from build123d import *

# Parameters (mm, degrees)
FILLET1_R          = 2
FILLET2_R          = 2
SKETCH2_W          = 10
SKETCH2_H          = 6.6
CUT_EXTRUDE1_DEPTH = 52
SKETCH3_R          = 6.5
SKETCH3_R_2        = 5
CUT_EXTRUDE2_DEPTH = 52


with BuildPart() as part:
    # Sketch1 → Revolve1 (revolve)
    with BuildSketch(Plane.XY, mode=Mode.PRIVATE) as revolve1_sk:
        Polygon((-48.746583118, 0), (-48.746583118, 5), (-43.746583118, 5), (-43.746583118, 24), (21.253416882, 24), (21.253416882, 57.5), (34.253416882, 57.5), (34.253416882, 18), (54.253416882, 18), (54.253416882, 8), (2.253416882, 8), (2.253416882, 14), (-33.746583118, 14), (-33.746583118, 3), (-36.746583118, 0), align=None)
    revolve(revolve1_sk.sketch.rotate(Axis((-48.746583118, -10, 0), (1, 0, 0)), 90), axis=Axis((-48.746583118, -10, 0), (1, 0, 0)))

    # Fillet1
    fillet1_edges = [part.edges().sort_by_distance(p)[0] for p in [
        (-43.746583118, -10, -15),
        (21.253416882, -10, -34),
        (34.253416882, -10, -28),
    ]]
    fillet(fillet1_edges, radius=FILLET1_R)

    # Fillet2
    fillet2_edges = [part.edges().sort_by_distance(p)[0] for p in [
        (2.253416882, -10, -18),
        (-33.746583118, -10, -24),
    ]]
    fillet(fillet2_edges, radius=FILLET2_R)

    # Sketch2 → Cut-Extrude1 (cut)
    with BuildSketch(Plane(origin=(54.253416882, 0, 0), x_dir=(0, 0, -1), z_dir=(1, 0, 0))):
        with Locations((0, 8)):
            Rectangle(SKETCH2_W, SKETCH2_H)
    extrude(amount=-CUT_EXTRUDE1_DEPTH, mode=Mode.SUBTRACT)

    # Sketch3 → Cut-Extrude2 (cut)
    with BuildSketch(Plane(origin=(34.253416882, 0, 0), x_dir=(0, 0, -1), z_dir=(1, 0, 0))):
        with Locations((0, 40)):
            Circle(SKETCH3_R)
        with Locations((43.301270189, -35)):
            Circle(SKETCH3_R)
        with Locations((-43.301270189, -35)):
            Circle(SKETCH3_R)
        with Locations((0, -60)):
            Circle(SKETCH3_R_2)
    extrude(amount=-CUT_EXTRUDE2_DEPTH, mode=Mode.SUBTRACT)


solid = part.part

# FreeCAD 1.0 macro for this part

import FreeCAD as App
import Part
import Sketcher

V = App.Vector
Q = App.Units.Quantity


def edges_at(feature, points):
    """Names of the edges that pass closest to the given points."""
    edges = feature.Shape.Edges
    near = lambda p: min(range(len(edges)), key=lambda i: edges[i].distToShape(Part.Vertex(*p))[0])
    return sorted({f"Edge{near(p) + 1}" for p in points})

doc = App.newDocument("Part")
body = doc.addObject("PartDesign::Body", "Body")

sketch1 = body.newObject("Sketcher::SketchObject", "Sketch")
sketch1.AttachmentSupport = (doc.getObject("XY_Plane"), [""])
sketch1.MapMode = "FlatFace"
sketch1.addGeometry(Part.LineSegment(V(-48.746583, 5, 0), V(-48.746583, 0, 0)), False)
sketch1.addGeometry(Part.LineSegment(V(-48.746583, 0, 0), V(-36.746583, 0, 0)), False)
sketch1.addGeometry(Part.LineSegment(V(-36.746583, 0, 0), V(-33.746583, 3, 0)), False)
sketch1.addGeometry(Part.LineSegment(V(-33.746583, 3, 0), V(-33.746583, 14, 0)), False)
sketch1.addGeometry(Part.LineSegment(V(-33.746583, 14, 0), V(2.253417, 14, 0)), False)
sketch1.addGeometry(Part.LineSegment(V(2.253417, 14, 0), V(2.253417, 8, 0)), False)
sketch1.addGeometry(Part.LineSegment(V(2.253417, 8, 0), V(54.253417, 8, 0)), False)
sketch1.addGeometry(Part.LineSegment(V(54.253417, 8, 0), V(54.253417, 18, 0)), False)
sketch1.addGeometry(Part.LineSegment(V(54.253417, 18, 0), V(34.253417, 18, 0)), False)
sketch1.addGeometry(Part.LineSegment(V(34.253417, 18, 0), V(34.253417, 57.5, 0)), False)
sketch1.addGeometry(Part.LineSegment(V(34.253417, 57.5, 0), V(21.253417, 57.5, 0)), False)
sketch1.addGeometry(Part.LineSegment(V(21.253417, 57.5, 0), V(21.253417, 24, 0)), False)
sketch1.addGeometry(Part.LineSegment(V(21.253417, 24, 0), V(-43.746583, 24, 0)), False)
sketch1.addGeometry(Part.LineSegment(V(-43.746583, 24, 0), V(-43.746583, 5, 0)), False)
sketch1.addGeometry(Part.LineSegment(V(-43.746583, 5, 0), V(-48.746583, 5, 0)), False)
sketch1.addGeometry(Part.LineSegment(V(-48.746583, -10, 0), V(54.253417, -10, 0)), True)
sketch1.addConstraint(Sketcher.Constraint("Coincident", 0, 2, 1, 1))
sketch1.addConstraint(Sketcher.Constraint("Coincident", 1, 2, 2, 1))
sketch1.addConstraint(Sketcher.Constraint("Coincident", 2, 2, 3, 1))
sketch1.addConstraint(Sketcher.Constraint("Coincident", 3, 2, 4, 1))
sketch1.addConstraint(Sketcher.Constraint("Coincident", 4, 2, 5, 1))
sketch1.addConstraint(Sketcher.Constraint("Coincident", 5, 2, 6, 1))
sketch1.addConstraint(Sketcher.Constraint("Coincident", 6, 2, 7, 1))
sketch1.addConstraint(Sketcher.Constraint("Coincident", 7, 2, 8, 1))
sketch1.addConstraint(Sketcher.Constraint("Coincident", 8, 2, 9, 1))
sketch1.addConstraint(Sketcher.Constraint("Coincident", 9, 2, 10, 1))
sketch1.addConstraint(Sketcher.Constraint("Coincident", 10, 2, 11, 1))
sketch1.addConstraint(Sketcher.Constraint("Coincident", 11, 2, 12, 1))
sketch1.addConstraint(Sketcher.Constraint("Coincident", 12, 2, 13, 1))
sketch1.addConstraint(Sketcher.Constraint("Coincident", 13, 2, 14, 1))
sketch1.addConstraint(Sketcher.Constraint("Coincident", 14, 2, 0, 1))
sketch1.addConstraint(Sketcher.Constraint("Vertical", 0))
sketch1.addConstraint(Sketcher.Constraint("Horizontal", 1))
sketch1.addConstraint(Sketcher.Constraint("Vertical", 3))
sketch1.addConstraint(Sketcher.Constraint("Horizontal", 4))
sketch1.addConstraint(Sketcher.Constraint("Vertical", 5))
sketch1.addConstraint(Sketcher.Constraint("Horizontal", 6))
sketch1.addConstraint(Sketcher.Constraint("Vertical", 7))
sketch1.addConstraint(Sketcher.Constraint("Horizontal", 8))
sketch1.addConstraint(Sketcher.Constraint("Vertical", 9))
sketch1.addConstraint(Sketcher.Constraint("Horizontal", 10))
sketch1.addConstraint(Sketcher.Constraint("Vertical", 11))
sketch1.addConstraint(Sketcher.Constraint("Horizontal", 12))
sketch1.addConstraint(Sketcher.Constraint("Vertical", 13))
sketch1.addConstraint(Sketcher.Constraint("Horizontal", 14))
sketch1.addConstraint(Sketcher.Constraint("Horizontal", 15))
sketch1.addConstraint(Sketcher.Constraint("PointOnObject", 0, 2, -1))
sketch1.addConstraint(Sketcher.Constraint("Vertical", 14, 2, 15, 1))
sketch1.addConstraint(Sketcher.Constraint("Vertical", 7, 2, 15, 2))
sketch1.addConstraint(Sketcher.Constraint("Equal", 14, 0))
sketch1.addConstraint(Sketcher.Constraint("DistanceX", 1, 1, 1, 2, Q("12 mm")))
sketch1.addConstraint(Sketcher.Constraint("DistanceX", 4, 1, 4, 2, Q("36 mm")))
sketch1.addConstraint(Sketcher.Constraint("DistanceX", 6, 1, 6, 2, Q("52 mm")))
sketch1.addConstraint(Sketcher.Constraint("DistanceX", 8, 2, 8, 1, Q("20 mm")))
sketch1.addConstraint(Sketcher.Constraint("DistanceX", 10, 2, 10, 1, Q("13 mm")))
sketch1.addConstraint(Sketcher.Constraint("DistanceX", 12, 2, 12, 1, Q("65 mm")))
sketch1.addConstraint(Sketcher.Constraint("DistanceX", 14, 2, 14, 1, Q("5 mm")))
sketch1.addConstraint(Sketcher.Constraint("DistanceY", 3, 1, 3, 2, Q("11 mm")))
sketch1.addConstraint(Sketcher.Constraint("DistanceY", 5, 2, 5, 1, Q("6 mm")))
sketch1.addConstraint(Sketcher.Constraint("DistanceY", 7, 1, 7, 2, Q("10 mm")))
sketch1.addConstraint(Sketcher.Constraint("DistanceY", 13, 2, 13, 1, Q("19 mm")))
sketch1.addConstraint(Sketcher.Constraint("Angle", 2, Q("45 deg")))
sketch1.addConstraint(Sketcher.Constraint("DistanceY", 9, 1, 9, 2, Q("39.5 mm")))
sketch1.addConstraint(Sketcher.Constraint("DistanceY", 15, 1, -1, 1, Q("10 mm")))
sketch1.addConstraint(Sketcher.Constraint("DistanceX", 0, 2, -1, 1, Q("48.746583 mm")))
revolution = body.newObject("PartDesign::Revolution", "Revolution")
revolution.Profile = sketch1
revolution.ReferenceAxis = (sketch1, ["Axis0"])
revolution.Angle = 360
doc.recompute()

fillet = body.newObject("PartDesign::Fillet", "Fillet")
fillet.Base = (revolution, edges_at(revolution, [(-43.747, -10, -15), (21.253, -10, -34), (34.253, -10, -28)]))
fillet.Radius = 2
doc.recompute()

fillet2 = body.newObject("PartDesign::Fillet", "Fillet001")
fillet2.Base = (fillet, edges_at(fillet, [(2.253, -10, -18), (-33.747, -10, -24)]))
fillet2.Radius = 2

sketch2 = body.newObject("Sketcher::SketchObject", "Sketch001")
sketch2.AttachmentSupport = (doc.getObject("YZ_Plane"), [""])
sketch2.MapMode = "FlatFace"
sketch2.AttachmentOffset = App.Placement(V(0, 0, 54.253417), App.Rotation())
sketch2.addGeometry(Part.LineSegment(V(11.3, 5, 0), V(4.7, 5, 0)), False)
sketch2.addGeometry(Part.LineSegment(V(4.7, 5, 0), V(4.7, -5, 0)), False)
sketch2.addGeometry(Part.LineSegment(V(4.7, -5, 0), V(11.3, -5, 0)), False)
sketch2.addGeometry(Part.LineSegment(V(11.3, -5, 0), V(11.3, 5, 0)), False)
sketch2.addConstraint(Sketcher.Constraint("Coincident", 0, 2, 1, 1))
sketch2.addConstraint(Sketcher.Constraint("Coincident", 1, 2, 2, 1))
sketch2.addConstraint(Sketcher.Constraint("Coincident", 2, 2, 3, 1))
sketch2.addConstraint(Sketcher.Constraint("Coincident", 3, 2, 0, 1))
sketch2.addConstraint(Sketcher.Constraint("Horizontal", 0))
sketch2.addConstraint(Sketcher.Constraint("Vertical", 1))
sketch2.addConstraint(Sketcher.Constraint("Horizontal", 2))
sketch2.addConstraint(Sketcher.Constraint("Vertical", 3))
sketch2.addConstraint(Sketcher.Constraint("DistanceY", 1, 2, 1, 1, Q("10 mm")))
sketch2.addConstraint(Sketcher.Constraint("DistanceX", 0, 2, 0, 1, Q("6.6 mm")))
sketch2.addConstraint(Sketcher.Constraint("DistanceY", -1, 1, 0, 2, Q("5 mm")))
sketch2.addConstraint(Sketcher.Constraint("DistanceX", -1, 1, 0, 2, Q("4.7 mm")))
pocket1 = body.newObject("PartDesign::Pocket", "Pocket")
pocket1.Profile = sketch2
pocket1.Length = 52

sketch3 = body.newObject("Sketcher::SketchObject", "Sketch002")
sketch3.AttachmentSupport = (doc.getObject("YZ_Plane"), [""])
sketch3.MapMode = "FlatFace"
sketch3.AttachmentOffset = App.Placement(V(0, 0, 34.253417), App.Rotation())
sketch3.addGeometry(Part.Circle(V(40, 0, 0), V(0, 0, 1), 6.5), False)
sketch3.addGeometry(Part.Circle(V(-35, -43.30127, 0), V(0, 0, 1), 6.5), False)
sketch3.addGeometry(Part.Circle(V(-35, 43.30127, 0), V(0, 0, 1), 6.5), False)
sketch3.addGeometry(Part.Circle(V(-60, 0, 0), V(0, 0, 1), 5), False)
sketch3.addConstraint(Sketcher.Constraint("Equal", 0, 1))
sketch3.addConstraint(Sketcher.Constraint("Equal", 1, 2))
sketch3.addConstraint(Sketcher.Constraint("Symmetric", 1, 3, 2, 3, -1))
sketch3.addConstraint(Sketcher.Constraint("PointOnObject", 0, 3, -1))
sketch3.addConstraint(Sketcher.Constraint("PointOnObject", 3, 3, -1))
sketch3.addConstraint(Sketcher.Constraint("Diameter", 0, Q("13 mm")))
sketch3.addConstraint(Sketcher.Constraint("Diameter", 3, Q("10 mm")))
sketch3.addConstraint(Sketcher.Constraint("DistanceX", -1, 1, 0, 3, Q("40 mm")))
sketch3.addConstraint(Sketcher.Constraint("DistanceX", 1, 3, -1, 1, Q("35 mm")))
sketch3.addConstraint(Sketcher.Constraint("DistanceX", 3, 3, -1, 1, Q("60 mm")))
sketch3.addConstraint(Sketcher.Constraint("DistanceY", 1, 3, -1, 1, Q("43.30127 mm")))
pocket2 = body.newObject("PartDesign::Pocket", "Pocket001")
pocket2.Profile = sketch3
pocket2.Length = 52

doc.recompute()
